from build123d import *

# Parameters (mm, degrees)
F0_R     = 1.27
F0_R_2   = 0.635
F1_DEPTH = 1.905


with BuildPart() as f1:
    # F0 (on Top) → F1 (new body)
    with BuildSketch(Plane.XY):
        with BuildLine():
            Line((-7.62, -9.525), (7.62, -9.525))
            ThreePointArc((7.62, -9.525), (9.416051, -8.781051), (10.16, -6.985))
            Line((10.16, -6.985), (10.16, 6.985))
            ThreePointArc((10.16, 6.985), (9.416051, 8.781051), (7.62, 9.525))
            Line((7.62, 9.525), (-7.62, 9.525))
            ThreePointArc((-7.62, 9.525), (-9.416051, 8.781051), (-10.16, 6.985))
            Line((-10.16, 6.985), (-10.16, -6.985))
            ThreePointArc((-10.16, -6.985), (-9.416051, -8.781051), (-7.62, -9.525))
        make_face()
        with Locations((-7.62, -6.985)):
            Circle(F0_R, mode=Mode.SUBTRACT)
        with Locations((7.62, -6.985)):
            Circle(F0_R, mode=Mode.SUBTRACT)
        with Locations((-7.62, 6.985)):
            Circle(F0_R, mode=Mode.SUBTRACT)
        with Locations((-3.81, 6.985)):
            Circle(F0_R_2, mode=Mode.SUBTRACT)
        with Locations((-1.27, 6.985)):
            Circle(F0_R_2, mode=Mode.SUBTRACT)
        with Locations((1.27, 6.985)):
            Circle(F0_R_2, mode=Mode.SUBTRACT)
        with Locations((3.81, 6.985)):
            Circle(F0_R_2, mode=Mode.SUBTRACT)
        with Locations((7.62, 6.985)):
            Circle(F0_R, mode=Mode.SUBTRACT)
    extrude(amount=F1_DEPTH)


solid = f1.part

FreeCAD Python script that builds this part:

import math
import FreeCAD as App
import Part
import Sketcher
Q = App.Units.Quantity

doc = App.newDocument("Part")
body = doc.addObject("PartDesign::Body", "Body")

sketch1 = body.newObject("Sketcher::SketchObject", "Sketch")
sketch1.AttachmentSupport = (doc.getObject("XY_Plane"), [""])
sketch1.MapMode = "FlatFace"
sketch1.addGeometry(Part.LineSegment(App.Vector(-7.62, -9.525, 0), App.Vector(7.62, -9.525, 0)), False)
sketch1.addGeometry(Part.ArcOfCircle(Part.Circle(App.Vector(7.619999, -6.984999, 0), App.Vector(0, 0, 1), 2.540001), math.radians(-89.999983), math.radians(-0.000017)), False)
sketch1.addGeometry(Part.LineSegment(App.Vector(10.16, -6.985, 0), App.Vector(10.16, 6.985, 0)), False)
sketch1.addGeometry(Part.ArcOfCircle(Part.Circle(App.Vector(7.619999, 6.984999, 0), App.Vector(0, 0, 1), 2.540001), math.radians(0.000017), math.radians(89.999983)), False)
sketch1.addGeometry(Part.LineSegment(App.Vector(7.62, 9.525, 0), App.Vector(-7.62, 9.525, 0)), False)
sketch1.addGeometry(Part.ArcOfCircle(Part.Circle(App.Vector(-7.619999, 6.984999, 0), App.Vector(0, 0, 1), 2.540001), math.radians(90.000017), math.radians(179.999983)), False)
sketch1.addGeometry(Part.LineSegment(App.Vector(-10.16, 6.985, 0), App.Vector(-10.16, -6.985, 0)), False)
sketch1.addGeometry(Part.ArcOfCircle(Part.Circle(App.Vector(-7.619999, -6.984999, 0), App.Vector(0, 0, 1), 2.540001), math.radians(-179.999983), math.radians(-90.000017)), False)
sketch1.addGeometry(Part.Circle(App.Vector(-7.62, -6.985, 0), App.Vector(0, 0, 1), 1.27), False)
sketch1.addGeometry(Part.Circle(App.Vector(7.62, -6.985, 0), App.Vector(0, 0, 1), 1.27), False)
sketch1.addGeometry(Part.Circle(App.Vector(-7.62, 6.985, 0), App.Vector(0, 0, 1), 1.27), False)
sketch1.addGeometry(Part.Circle(App.Vector(-3.81, 6.985, 0), App.Vector(0, 0, 1), 0.635), False)
sketch1.addGeometry(Part.Circle(App.Vector(-1.27, 6.985, 0), App.Vector(0, 0, 1), 0.635), False)
sketch1.addGeometry(Part.Circle(App.Vector(1.27, 6.985, 0), App.Vector(0, 0, 1), 0.635), False)
sketch1.addGeometry(Part.Circle(App.Vector(3.81, 6.985, 0), App.Vector(0, 0, 1), 0.635), False)
sketch1.addGeometry(Part.Circle(App.Vector(7.62, 6.985, 0), App.Vector(0, 0, 1), 1.27), False)
sketch1.addConstraint(Sketcher.Constraint("Tangent", 0, 2, 1, 1))
sketch1.addConstraint(Sketcher.Constraint("Tangent", 1, 2, 2, 1))
sketch1.addConstraint(Sketcher.Constraint("Tangent", 2, 2, 3, 1))
sketch1.addConstraint(Sketcher.Constraint("Tangent", 3, 2, 4, 1))
sketch1.addConstraint(Sketcher.Constraint("Tangent", 4, 2, 5, 1))
sketch1.addConstraint(Sketcher.Constraint("Tangent", 5, 2, 6, 1))
sketch1.addConstraint(Sketcher.Constraint("Tangent", 6, 2, 7, 1))
sketch1.addConstraint(Sketcher.Constraint("Tangent", 7, 2, 0, 1))
sketch1.addConstraint(Sketcher.Constraint("Horizontal", 0))
sketch1.addConstraint(Sketcher.Constraint("Vertical", 2))
sketch1.addConstraint(Sketcher.Constraint("Horizontal", 4))
sketch1.addConstraint(Sketcher.Constraint("Vertical", 6))
sketch1.addConstraint(Sketcher.Constraint("Coincident", 8, 3, 7, 3))
sketch1.addConstraint(Sketcher.Constraint("Coincident", 9, 3, 1, 3))
sketch1.addConstraint(Sketcher.Constraint("Coincident", 10, 3, 5, 3))
sketch1.addConstraint(Sketcher.Constraint("Coincident", 15, 3, 3, 3))
sketch1.addConstraint(Sketcher.Constraint("Equal", 1, 3))
sketch1.addConstraint(Sketcher.Constraint("Equal", 3, 5))
sketch1.addConstraint(Sketcher.Constraint("Equal", 5, 7))
sketch1.addConstraint(Sketcher.Constraint("Equal", 8, 9))
sketch1.addConstraint(Sketcher.Constraint("Equal", 9, 10))
sketch1.addConstraint(Sketcher.Constraint("Equal", 11, 12))
sketch1.addConstraint(Sketcher.Constraint("Equal", 12, 13))
sketch1.addConstraint(Sketcher.Constraint("Equal", 13, 14))
sketch1.addConstraint(Sketcher.Constraint("Equal", 10, 15))
sketch1.addConstraint(Sketcher.Constraint("Symmetric", 1, 3, 5, 3, -1, 1))
sketch1.addConstraint(Sketcher.Constraint("Symmetric", 12, 3, 13, 3, -2))
sketch1.addConstraint(Sketcher.Constraint("Symmetric", 11, 3, 14, 3, -2))
sketch1.addConstraint(Sketcher.Constraint("Horizontal", 10, 3, 11, 3))
sketch1.addConstraint(Sketcher.Constraint("Horizontal", 11, 3, 12, 3))
sketch1.addConstraint(Sketcher.Constraint("Diameter", 8, Q("0.1 in")))
sketch1.addConstraint(Sketcher.Constraint("Radius", 1, Q("0.1 in")))
sketch1.addConstraint(Sketcher.Constraint("Diameter", 11, Q("0.05 in")))
sketch1.addConstraint(Sketcher.Constraint("DistanceX", 0, 1, 0, 2, Q("0.6 in")))
sketch1.addConstraint(Sketcher.Constraint("DistanceY", 2, 1, 2, 2, Q("0.55 in")))
sketch1.addConstraint(Sketcher.Constraint("DistanceX", 11, 3, 12, 3, Q("0.1 in")))
sketch1.addConstraint(Sketcher.Constraint("DistanceX", 12, 3, 13, 3, Q("0.1 in")))
pad1 = body.newObject("PartDesign::Pad", "Pad")
pad1.Profile = sketch1
pad1.Length = Q("0.075 in")

doc.recompute()
